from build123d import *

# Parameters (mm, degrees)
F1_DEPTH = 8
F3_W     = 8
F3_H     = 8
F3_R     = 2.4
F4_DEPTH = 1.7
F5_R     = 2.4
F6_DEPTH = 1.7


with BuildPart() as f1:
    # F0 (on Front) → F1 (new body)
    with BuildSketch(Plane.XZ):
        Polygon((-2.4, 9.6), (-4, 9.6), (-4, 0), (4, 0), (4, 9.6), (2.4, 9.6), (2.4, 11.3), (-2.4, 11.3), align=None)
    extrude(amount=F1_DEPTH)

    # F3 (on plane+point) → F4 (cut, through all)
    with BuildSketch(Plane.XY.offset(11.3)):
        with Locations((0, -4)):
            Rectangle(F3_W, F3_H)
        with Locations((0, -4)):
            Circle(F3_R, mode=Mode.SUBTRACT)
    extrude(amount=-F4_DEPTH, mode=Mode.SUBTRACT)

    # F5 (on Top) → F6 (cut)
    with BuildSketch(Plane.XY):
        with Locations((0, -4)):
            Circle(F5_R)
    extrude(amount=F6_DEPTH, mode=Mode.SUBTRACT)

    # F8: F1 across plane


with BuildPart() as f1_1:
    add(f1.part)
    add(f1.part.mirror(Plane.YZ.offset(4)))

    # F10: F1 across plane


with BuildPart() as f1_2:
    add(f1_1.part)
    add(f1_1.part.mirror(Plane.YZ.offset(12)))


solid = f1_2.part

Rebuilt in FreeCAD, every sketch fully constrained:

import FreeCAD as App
import Part
import Sketcher
Q = App.Units.Quantity


def add_polygon(sketch, points):
    """Adds a closed chain of lines whose ends are joined by coincident constraints."""
    first, n = sketch.GeometryCount, len(points)
    for a, b in zip(points, points[1:] + points[:1]):
        sketch.addGeometry(Part.LineSegment(App.Vector(*a, 0), App.Vector(*b, 0)), False)
    for i in range(n):
        sketch.addConstraint(Sketcher.Constraint("Coincident", first + i, 2, first + (i + 1) % n, 1))

doc = App.newDocument("Part")
body = doc.addObject("PartDesign::Body", "Body")

sketch1 = body.newObject("Sketcher::SketchObject", "Sketch")
sketch1.AttachmentSupport = (doc.getObject("XZ_Plane"), [""])
sketch1.MapMode = "FlatFace"
add_polygon(sketch1, [(-2.4, 9.6), (-4, 9.6), (-4, 0), (4, 0), (4, 9.6), (2.4, 9.6), (2.4, 11.3), (-2.4, 11.3)])
sketch1.addConstraint([
    Sketcher.Constraint("Horizontal", 0),
    Sketcher.Constraint("Vertical", 1),
    Sketcher.Constraint("Horizontal", 2),
    Sketcher.Constraint("Vertical", 3),
    Sketcher.Constraint("Horizontal", 4),
    Sketcher.Constraint("Vertical", 5),
    Sketcher.Constraint("Horizontal", 6),
    Sketcher.Constraint("Vertical", 7),
    Sketcher.Constraint("Symmetric", 1, 2, 2, 2, -1, 1),
    Sketcher.Constraint("Symmetric", 4, 2, 7, 2, -2),
    Sketcher.Constraint("DistanceX", 2, 1, 2, 2, Q("8 mm")),
    Sketcher.Constraint("DistanceX", 0, 2, 0, 1, Q("1.6 mm")),
    Sketcher.Constraint("DistanceY", 1, 2, 1, 1, Q("9.6 mm")),
    Sketcher.Constraint("DistanceY", 5, 1, 5, 2, Q("1.7 mm")),
])
pad1 = body.newObject("PartDesign::Pad", "Pad")
pad1.Profile = sketch1
pad1.Length = 8

sketch2 = body.newObject("Sketcher::SketchObject", "Sketch001")
sketch2.AttachmentSupport = (doc.getObject("XY_Plane"), [""])
sketch2.MapMode = "FlatFace"
sketch2.AttachmentOffset = App.Placement(App.Vector(0, 0, 11.3), App.Rotation())
add_polygon(sketch2, [(-4, 0), (-4, -8), (4, -8), (4, 0)])
sketch2.addGeometry(Part.Circle(App.Vector(0, -4, 0), App.Vector(0, 0, 1), 2.4), False)
sketch2.addConstraint([
    Sketcher.Constraint("Vertical", 0),
    Sketcher.Constraint("Horizontal", 1),
    Sketcher.Constraint("Vertical", 2),
    Sketcher.Constraint("Horizontal", 3),
    Sketcher.Constraint("Symmetric", 2, 2, 3, 2, -1, 1),
    Sketcher.Constraint("PointOnObject", 4, 3, -2),
    Sketcher.Constraint("Equal", 3, 0),
    Sketcher.Constraint("Diameter", 4, Q("4.8 mm")),
    Sketcher.Constraint("DistanceX", 1, 1, 1, 2, Q("8 mm")),
    Sketcher.Constraint("DistanceY", 4, 3, -1, 1, Q("4 mm")),
])
pocket1 = body.newObject("PartDesign::Pocket", "Pocket")
pocket1.Profile = sketch2
pocket1.Length = 1.7

sketch3 = body.newObject("Sketcher::SketchObject", "Sketch002")
sketch3.AttachmentSupport = (doc.getObject("XY_Plane"), [""])
sketch3.MapMode = "FlatFace"
sketch3.addGeometry(Part.Circle(App.Vector(0, -4, 0), App.Vector(0, 0, 1), 2.4), False)
sketch3.addConstraint([
    Sketcher.Constraint("PointOnObject", 0, 3, -2),
    Sketcher.Constraint("Diameter", 0, Q("4.8 mm")),
    Sketcher.Constraint("DistanceY", 0, 3, -1, 1, Q("4 mm")),
])
pocket2 = body.newObject("PartDesign::Pocket", "Pocket001")
pocket2.Profile = sketch3
pocket2.Length = 1.7
pocket2.Reversed = True
body2 = doc.addObject("PartDesign::Body", "Body001")
doc.recompute()

body2.BaseFeature = body
doc.recompute()

mirroring = doc.addObject("Part::Mirroring", "Mirroring")
mirroring.Source = body
mirroring.Base = App.Vector(4, 0, 0)
mirroring.Normal = App.Vector(1, 0, 0)
body3 = doc.addObject("PartDesign::Body", "Body002")
body3.BaseFeature = mirroring
boolean = body2.newObject("PartDesign::Boolean", "Boolean")
boolean.Type = "Fuse"
boolean.addObjects([body3])
doc.recompute()
body4 = doc.addObject("PartDesign::Body", "Body003")
doc.recompute()

body4.BaseFeature = body2
doc.recompute()

mirroring2 = doc.addObject("Part::Mirroring", "Mirroring001")
mirroring2.Source = body2
mirroring2.Base = App.Vector(12, 0, 0)
mirroring2.Normal = App.Vector(1, 0, 0)
body5 = doc.addObject("PartDesign::Body", "Body004")
body5.BaseFeature = mirroring2
boolean2 = body4.newObject("PartDesign::Boolean", "Boolean001")
boolean2.Type = "Fuse"
boolean2.addObjects([body5])
doc.recompute()
mirroring.Visibility = False
mirroring2.Visibility = False

doc.recompute()
